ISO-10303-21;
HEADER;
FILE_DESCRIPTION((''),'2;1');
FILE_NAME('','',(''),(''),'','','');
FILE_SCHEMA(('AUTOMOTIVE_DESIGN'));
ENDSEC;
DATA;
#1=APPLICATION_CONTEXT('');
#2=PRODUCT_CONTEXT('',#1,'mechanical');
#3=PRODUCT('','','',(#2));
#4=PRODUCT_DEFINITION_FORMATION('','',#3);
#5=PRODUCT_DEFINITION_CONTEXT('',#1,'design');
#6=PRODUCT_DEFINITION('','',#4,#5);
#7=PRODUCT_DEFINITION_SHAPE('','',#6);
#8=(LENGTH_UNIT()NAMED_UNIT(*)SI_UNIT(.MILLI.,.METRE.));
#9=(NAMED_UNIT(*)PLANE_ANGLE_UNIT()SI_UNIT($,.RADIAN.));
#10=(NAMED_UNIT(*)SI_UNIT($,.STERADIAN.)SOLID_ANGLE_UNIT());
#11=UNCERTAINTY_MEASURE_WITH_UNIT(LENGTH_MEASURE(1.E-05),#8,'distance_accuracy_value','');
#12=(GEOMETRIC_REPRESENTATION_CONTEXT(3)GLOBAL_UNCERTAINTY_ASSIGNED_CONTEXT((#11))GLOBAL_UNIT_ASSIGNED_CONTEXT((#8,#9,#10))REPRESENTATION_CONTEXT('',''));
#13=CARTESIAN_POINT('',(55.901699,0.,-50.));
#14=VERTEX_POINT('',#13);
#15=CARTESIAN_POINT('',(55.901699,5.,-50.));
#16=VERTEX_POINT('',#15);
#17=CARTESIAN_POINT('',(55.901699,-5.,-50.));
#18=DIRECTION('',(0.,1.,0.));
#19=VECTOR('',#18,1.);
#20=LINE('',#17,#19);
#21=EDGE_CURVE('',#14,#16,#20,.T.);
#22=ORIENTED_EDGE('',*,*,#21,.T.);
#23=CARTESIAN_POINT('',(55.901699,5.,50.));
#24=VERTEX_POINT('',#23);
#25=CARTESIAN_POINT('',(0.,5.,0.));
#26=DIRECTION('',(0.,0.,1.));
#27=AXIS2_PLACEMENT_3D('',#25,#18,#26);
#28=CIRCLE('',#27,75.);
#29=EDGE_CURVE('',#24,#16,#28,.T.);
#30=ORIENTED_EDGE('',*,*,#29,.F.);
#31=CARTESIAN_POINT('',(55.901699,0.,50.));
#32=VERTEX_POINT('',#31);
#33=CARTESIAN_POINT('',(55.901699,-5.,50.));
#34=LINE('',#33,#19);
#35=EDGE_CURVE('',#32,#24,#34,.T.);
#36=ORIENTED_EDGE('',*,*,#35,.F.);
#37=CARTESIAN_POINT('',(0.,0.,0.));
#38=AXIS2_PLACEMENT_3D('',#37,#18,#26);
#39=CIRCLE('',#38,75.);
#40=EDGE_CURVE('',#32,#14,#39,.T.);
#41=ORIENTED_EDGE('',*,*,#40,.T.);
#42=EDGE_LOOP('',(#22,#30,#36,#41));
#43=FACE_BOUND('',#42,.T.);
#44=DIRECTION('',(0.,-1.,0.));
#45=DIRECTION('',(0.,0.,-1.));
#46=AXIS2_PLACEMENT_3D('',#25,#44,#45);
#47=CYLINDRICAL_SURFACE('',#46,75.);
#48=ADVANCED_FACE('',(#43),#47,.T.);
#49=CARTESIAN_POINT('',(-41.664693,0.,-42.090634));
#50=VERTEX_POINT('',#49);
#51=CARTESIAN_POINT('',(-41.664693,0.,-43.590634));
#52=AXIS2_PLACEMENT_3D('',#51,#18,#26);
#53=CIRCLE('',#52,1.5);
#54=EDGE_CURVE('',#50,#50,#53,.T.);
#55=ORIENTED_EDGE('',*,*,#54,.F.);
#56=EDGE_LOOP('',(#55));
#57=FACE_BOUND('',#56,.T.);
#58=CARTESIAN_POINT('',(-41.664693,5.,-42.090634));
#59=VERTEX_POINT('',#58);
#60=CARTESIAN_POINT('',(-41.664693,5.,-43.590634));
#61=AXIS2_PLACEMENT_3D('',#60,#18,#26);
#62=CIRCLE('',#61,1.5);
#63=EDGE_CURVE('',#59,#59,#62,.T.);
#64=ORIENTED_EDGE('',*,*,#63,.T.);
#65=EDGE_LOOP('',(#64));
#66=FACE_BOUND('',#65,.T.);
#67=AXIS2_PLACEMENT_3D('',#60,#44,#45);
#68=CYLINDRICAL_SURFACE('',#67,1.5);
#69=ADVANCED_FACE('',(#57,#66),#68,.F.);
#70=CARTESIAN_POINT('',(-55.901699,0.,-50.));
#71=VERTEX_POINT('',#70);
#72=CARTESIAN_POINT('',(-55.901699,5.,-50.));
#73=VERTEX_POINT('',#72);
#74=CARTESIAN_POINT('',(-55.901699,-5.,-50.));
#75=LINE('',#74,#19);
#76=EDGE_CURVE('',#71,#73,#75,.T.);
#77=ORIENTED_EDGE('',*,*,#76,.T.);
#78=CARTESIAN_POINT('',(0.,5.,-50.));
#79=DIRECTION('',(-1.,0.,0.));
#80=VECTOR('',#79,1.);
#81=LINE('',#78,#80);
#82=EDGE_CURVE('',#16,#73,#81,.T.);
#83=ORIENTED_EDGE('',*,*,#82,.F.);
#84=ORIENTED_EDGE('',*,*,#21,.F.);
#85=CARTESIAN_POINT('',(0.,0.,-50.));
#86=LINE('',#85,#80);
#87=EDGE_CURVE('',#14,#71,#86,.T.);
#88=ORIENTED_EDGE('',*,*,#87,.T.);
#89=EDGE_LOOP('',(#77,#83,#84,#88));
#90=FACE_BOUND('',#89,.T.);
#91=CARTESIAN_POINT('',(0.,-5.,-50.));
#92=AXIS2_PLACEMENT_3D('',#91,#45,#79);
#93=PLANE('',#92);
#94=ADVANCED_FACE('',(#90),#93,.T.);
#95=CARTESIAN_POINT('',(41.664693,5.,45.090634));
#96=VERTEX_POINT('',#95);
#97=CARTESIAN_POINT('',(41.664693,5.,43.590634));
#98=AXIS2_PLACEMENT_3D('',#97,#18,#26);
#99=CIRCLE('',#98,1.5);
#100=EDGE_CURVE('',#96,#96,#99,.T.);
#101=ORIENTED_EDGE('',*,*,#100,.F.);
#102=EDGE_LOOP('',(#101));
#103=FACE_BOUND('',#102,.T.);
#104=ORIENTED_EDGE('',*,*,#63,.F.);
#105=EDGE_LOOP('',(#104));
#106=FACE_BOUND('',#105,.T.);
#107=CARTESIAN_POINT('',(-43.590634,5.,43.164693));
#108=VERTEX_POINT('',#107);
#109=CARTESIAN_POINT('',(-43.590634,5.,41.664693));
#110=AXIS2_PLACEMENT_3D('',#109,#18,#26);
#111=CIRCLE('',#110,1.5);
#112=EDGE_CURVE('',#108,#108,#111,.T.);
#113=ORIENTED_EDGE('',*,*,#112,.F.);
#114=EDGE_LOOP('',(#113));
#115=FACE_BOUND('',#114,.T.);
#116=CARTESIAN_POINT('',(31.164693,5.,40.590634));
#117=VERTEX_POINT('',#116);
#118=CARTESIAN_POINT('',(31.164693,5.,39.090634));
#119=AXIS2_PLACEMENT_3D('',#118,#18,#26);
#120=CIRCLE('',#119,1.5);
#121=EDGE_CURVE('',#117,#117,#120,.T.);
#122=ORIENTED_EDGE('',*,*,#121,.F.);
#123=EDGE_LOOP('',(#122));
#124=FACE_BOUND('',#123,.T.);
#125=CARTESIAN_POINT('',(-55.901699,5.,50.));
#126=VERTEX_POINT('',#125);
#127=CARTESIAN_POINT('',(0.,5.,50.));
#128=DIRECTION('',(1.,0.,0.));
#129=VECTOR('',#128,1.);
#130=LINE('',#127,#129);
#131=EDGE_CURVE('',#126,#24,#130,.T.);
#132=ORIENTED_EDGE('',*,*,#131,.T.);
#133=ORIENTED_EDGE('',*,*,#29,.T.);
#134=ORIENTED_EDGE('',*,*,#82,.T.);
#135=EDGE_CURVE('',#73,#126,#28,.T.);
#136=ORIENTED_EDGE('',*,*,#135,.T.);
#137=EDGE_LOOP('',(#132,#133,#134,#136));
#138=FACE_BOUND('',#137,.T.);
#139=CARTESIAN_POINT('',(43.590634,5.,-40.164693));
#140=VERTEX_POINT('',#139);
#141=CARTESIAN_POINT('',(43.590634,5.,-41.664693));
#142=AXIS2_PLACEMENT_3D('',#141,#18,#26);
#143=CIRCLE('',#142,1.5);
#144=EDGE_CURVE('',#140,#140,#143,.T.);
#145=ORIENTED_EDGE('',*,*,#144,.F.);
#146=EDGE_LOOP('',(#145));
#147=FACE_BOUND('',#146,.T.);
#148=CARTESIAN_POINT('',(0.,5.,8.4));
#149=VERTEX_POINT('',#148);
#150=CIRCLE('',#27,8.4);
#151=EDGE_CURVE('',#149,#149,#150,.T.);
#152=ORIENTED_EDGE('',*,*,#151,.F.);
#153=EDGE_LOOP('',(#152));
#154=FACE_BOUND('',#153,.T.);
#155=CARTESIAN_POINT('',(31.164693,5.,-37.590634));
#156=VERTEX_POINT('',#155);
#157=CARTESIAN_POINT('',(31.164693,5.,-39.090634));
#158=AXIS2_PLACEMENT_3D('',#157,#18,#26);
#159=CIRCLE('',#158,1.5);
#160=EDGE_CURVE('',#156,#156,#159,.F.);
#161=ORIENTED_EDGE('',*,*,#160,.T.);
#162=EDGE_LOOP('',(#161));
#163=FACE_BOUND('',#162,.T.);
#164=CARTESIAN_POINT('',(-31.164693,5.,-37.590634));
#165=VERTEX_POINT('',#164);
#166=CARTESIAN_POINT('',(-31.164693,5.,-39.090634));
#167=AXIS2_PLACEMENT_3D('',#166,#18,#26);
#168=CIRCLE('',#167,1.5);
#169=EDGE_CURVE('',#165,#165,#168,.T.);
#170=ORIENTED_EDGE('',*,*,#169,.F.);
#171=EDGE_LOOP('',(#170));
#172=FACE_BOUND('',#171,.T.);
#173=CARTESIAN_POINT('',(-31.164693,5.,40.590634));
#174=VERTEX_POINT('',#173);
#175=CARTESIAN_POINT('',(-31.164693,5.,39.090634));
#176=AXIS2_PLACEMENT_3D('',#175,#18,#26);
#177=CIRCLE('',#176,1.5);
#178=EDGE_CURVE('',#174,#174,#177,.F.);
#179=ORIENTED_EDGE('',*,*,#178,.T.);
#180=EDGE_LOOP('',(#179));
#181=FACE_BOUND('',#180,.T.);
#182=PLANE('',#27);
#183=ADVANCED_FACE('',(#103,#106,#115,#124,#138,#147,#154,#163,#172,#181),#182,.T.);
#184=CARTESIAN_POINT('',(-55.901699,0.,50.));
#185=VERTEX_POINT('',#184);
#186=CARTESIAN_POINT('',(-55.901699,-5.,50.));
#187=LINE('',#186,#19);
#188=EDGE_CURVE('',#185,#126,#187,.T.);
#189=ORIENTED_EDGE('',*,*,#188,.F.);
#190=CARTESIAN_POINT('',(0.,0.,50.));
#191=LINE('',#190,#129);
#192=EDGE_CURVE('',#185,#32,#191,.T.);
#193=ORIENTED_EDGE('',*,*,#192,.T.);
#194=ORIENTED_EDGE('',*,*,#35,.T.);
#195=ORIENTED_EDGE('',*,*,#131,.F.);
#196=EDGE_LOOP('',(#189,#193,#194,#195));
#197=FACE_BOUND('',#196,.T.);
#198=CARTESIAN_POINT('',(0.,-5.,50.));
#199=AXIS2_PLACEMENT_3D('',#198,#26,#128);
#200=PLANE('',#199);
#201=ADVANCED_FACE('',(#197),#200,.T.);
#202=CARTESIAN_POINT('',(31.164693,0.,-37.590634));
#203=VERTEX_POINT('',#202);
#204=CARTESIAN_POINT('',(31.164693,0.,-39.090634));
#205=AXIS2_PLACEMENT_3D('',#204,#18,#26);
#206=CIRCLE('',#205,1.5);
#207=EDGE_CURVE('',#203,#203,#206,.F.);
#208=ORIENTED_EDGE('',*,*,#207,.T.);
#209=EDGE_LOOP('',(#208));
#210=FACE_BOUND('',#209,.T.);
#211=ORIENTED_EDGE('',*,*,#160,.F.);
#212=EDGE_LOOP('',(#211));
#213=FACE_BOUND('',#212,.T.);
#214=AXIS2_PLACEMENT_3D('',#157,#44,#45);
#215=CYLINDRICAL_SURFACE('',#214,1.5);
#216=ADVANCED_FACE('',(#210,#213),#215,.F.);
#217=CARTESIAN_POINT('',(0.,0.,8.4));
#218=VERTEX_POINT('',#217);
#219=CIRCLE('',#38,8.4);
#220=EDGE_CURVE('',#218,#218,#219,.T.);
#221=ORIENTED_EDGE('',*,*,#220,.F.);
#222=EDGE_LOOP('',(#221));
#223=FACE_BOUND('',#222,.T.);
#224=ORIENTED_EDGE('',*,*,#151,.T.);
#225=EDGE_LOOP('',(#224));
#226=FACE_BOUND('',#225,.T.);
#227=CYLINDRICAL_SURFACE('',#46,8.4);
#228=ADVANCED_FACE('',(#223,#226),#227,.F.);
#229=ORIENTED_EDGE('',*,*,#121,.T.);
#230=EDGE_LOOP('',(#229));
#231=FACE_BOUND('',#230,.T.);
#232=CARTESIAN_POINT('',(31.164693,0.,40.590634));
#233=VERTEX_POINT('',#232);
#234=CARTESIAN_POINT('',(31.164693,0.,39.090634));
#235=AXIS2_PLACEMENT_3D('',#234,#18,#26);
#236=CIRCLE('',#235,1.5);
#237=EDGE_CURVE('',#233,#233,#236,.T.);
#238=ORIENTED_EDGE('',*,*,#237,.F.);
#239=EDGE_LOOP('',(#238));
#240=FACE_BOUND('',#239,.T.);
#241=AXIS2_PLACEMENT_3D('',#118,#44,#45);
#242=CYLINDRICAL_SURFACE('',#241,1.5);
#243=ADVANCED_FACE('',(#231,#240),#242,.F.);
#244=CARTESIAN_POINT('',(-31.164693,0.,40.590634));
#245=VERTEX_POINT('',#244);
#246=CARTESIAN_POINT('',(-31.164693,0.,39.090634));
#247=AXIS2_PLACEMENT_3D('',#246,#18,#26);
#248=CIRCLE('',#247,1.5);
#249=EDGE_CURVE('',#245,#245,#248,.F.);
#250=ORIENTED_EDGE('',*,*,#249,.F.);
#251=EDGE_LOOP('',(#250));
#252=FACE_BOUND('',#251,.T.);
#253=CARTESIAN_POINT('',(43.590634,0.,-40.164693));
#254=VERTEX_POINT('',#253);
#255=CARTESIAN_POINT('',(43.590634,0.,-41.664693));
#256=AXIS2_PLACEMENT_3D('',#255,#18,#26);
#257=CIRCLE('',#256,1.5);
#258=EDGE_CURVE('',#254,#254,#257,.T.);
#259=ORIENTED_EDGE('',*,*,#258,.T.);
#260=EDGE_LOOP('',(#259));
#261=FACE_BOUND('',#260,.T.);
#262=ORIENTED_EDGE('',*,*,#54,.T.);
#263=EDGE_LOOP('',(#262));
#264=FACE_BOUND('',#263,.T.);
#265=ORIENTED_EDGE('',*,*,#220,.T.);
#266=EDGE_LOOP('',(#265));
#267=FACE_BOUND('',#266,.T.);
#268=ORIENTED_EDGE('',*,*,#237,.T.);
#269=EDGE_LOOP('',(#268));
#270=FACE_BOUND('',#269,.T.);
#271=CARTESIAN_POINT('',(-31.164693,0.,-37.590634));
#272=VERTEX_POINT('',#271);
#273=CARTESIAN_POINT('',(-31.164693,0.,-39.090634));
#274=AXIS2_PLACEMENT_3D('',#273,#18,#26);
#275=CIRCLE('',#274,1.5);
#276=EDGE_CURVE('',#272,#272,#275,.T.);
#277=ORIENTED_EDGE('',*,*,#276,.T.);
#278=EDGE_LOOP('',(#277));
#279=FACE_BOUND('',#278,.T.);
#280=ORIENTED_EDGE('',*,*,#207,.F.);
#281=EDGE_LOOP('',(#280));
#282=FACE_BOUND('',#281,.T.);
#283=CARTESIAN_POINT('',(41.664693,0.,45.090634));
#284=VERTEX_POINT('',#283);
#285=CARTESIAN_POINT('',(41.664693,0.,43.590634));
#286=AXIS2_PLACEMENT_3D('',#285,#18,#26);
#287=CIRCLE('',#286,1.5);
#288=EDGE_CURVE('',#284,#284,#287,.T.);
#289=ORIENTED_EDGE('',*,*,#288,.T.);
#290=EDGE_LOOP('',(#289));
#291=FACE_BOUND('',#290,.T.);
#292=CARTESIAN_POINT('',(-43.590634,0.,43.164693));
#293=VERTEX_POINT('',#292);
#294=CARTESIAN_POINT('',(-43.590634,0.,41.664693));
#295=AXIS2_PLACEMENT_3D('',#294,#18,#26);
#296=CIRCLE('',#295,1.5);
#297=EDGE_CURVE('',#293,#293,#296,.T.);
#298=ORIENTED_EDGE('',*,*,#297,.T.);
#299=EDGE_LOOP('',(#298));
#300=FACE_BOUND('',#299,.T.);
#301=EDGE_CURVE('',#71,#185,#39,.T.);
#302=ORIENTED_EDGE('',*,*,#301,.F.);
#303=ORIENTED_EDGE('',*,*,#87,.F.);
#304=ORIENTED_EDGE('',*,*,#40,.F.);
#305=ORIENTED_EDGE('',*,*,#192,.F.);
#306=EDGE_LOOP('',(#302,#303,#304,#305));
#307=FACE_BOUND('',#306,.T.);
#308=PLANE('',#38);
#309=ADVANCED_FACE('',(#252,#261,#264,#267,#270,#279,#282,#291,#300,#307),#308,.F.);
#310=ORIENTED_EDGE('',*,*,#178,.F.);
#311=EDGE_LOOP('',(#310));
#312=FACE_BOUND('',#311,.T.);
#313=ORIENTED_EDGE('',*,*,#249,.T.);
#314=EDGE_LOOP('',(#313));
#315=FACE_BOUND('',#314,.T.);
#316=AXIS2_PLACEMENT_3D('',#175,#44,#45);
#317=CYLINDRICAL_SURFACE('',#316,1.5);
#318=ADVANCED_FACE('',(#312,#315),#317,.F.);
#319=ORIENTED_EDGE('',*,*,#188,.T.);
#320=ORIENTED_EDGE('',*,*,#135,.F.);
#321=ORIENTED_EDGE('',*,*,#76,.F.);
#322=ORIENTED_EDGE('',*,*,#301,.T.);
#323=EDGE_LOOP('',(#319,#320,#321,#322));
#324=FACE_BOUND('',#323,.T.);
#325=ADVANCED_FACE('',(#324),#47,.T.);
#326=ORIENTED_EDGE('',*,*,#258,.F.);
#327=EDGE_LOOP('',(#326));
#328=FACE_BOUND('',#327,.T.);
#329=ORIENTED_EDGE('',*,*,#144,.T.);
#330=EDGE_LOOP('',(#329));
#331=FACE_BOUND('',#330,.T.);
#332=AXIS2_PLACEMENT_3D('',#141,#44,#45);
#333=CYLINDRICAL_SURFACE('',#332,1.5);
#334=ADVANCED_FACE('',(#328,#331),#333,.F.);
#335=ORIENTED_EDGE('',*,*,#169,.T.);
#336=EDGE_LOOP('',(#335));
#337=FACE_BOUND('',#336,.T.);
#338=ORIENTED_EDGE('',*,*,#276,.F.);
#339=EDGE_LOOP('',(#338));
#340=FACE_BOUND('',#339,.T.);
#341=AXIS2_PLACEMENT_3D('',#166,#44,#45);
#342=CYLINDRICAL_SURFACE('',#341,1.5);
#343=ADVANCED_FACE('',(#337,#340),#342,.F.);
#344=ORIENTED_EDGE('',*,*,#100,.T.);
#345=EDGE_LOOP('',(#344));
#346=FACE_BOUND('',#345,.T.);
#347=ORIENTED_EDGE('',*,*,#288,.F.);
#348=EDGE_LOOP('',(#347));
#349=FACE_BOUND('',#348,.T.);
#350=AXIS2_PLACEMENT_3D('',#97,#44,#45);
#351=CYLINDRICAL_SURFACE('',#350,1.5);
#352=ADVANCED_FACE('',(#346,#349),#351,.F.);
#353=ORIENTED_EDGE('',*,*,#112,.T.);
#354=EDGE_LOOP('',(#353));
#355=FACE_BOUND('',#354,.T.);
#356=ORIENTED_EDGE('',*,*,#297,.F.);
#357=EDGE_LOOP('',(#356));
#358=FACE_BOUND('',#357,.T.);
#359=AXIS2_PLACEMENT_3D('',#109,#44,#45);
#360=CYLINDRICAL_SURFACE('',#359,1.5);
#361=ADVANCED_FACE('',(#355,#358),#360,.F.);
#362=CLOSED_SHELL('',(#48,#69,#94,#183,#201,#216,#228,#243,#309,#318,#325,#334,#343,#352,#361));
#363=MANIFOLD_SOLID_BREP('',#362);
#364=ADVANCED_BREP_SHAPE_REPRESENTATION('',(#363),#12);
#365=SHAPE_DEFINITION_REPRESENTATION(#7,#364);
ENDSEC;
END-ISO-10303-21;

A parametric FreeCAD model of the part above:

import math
import FreeCAD as App
import Part
import Sketcher
from FreeCAD import Vector

doc = App.newDocument("Part")
body = doc.addObject("PartDesign::Body", "Body")

# Sketch on XZ plane
sketch1 = body.newObject("Sketcher::SketchObject", "Sketch")
sketch1.AttachmentSupport = (doc.getObject("XZ_Plane"), [""])
sketch1.MapMode = "FlatFace"
sketch1.addGeometry([
    Part.Circle(Vector(0, 0, 0), Vector(0, 0, 1), 75),  # 0
    Part.Circle(Vector(-41.664693, -43.590634, 0), Vector(0, 0, 1), 1.5),  # 1
    Part.Circle(Vector(-31.164693, -39.090634, 0), Vector(0, 0, 1), 1.5),  # 2
    Part.Circle(Vector(-43.590634, 41.664693, 0), Vector(0, 0, 1), 1.5),  # 3
    Part.Circle(Vector(-31.164693, 39.090634, 0), Vector(0, 0, 1), 1.5),  # 4
    Part.Circle(Vector(31.164693, -39.090634, 0), Vector(0, 0, 1), 1.5),  # 5
    Part.Circle(Vector(43.590634, -41.664693, 0), Vector(0, 0, 1), 1.5),  # 6
    Part.Circle(Vector(0, 0, 0), Vector(0, 0, 1), 8.4),  # 7
    Part.Circle(Vector(31.164693, 39.090634, 0), Vector(0, 0, 1), 1.5),  # 8
    Part.Circle(Vector(41.664693, 43.590634, 0), Vector(0, 0, 1), 1.5),  # 9
], False)
sketch1.addConstraint([
    Sketcher.Constraint("Coincident", 0, 3, -1, 1),
    Sketcher.Constraint("Coincident", 7, 3, -1, 1),
    Sketcher.Constraint("Equal", 1, 2),
    Sketcher.Constraint("Equal", 2, 3),
    Sketcher.Constraint("Equal", 3, 4),
    Sketcher.Constraint("Equal", 4, 5),
    Sketcher.Constraint("Equal", 5, 6),
    Sketcher.Constraint("Equal", 6, 8),
    Sketcher.Constraint("Equal", 8, 9),
    Sketcher.Constraint("Symmetric", 4, 3, 5, 3, -1, 1),
    Sketcher.Constraint("Symmetric", 3, 3, 6, 3, -1, 1),
    Sketcher.Constraint("Symmetric", 2, 3, 8, 3, -1, 1),
    Sketcher.Constraint("Symmetric", 1, 3, 9, 3, -1, 1),
    Sketcher.Constraint("Symmetric", 2, 3, 5, 3, -2),
    Sketcher.Constraint("Diameter", 0, 150.0),
    Sketcher.Constraint("Diameter", 1, 3.0),
    Sketcher.Constraint("Diameter", 7, 16.8),
    Sketcher.Constraint("DistanceX", 1, 3, 2, 3, 10.5),
    Sketcher.Constraint("DistanceY", 1, 3, 2, 3, 4.5),
    Sketcher.Constraint("DistanceX", 3, 3, 2, 3, 12.425942),
    Sketcher.Constraint("DistanceY", 4, 3, 3, 3, 2.574058),
    Sketcher.Constraint("DistanceY", 2, 3, 4, 3, 78.181268),
    Sketcher.Constraint("DistanceX", 1, 3, -1, 1, 41.664693),
])
pad1 = body.newObject("PartDesign::Pad", "Pad")
pad1.Profile = sketch1
pad1.Length = 5
pad1.Reversed = True

# Sketch on XZ plane
sketch2 = body.newObject("Sketcher::SketchObject", "Sketch001")
sketch2.AttachmentSupport = (doc.getObject("XZ_Plane"), [""])
sketch2.MapMode = "FlatFace"
sketch2.AttachmentOffset = App.Placement(Vector(0, 0, 5), App.Rotation())
sketch2.addGeometry([
    Part.LineSegment(Vector(-55.901699, -50, 0), Vector(55.901699, -50, 0)),
    Part.ArcOfCircle(Part.Circle(Vector(0, 0, 0), Vector(0, 0, 1), 75), math.radians(-138.189685), math.radians(-41.810315)),
    Part.LineSegment(Vector(55.901699, 50, 0), Vector(-55.901699, 50, 0)),
    Part.ArcOfCircle(Part.Circle(Vector(0, 0, 0), Vector(0, 0, 1), 75), math.radians(41.810315), math.radians(138.189685)),
], False)
sketch2.addConstraint([
    Sketcher.Constraint("Coincident", 0, 1, 1, 1),
    Sketcher.Constraint("Coincident", 1, 2, 0, 2),
    Sketcher.Constraint("Coincident", 2, 1, 3, 1),
    Sketcher.Constraint("Coincident", 3, 2, 2, 2),
    Sketcher.Constraint("Horizontal", 0),
    Sketcher.Constraint("Horizontal", 2),
    Sketcher.Constraint("Coincident", 1, 3, -1, 1),
    Sketcher.Constraint("Coincident", 3, 3, -1, 1),
    Sketcher.Constraint("Equal", 1, 3),
    Sketcher.Constraint("Vertical", 1, 2, 2, 1),
    Sketcher.Constraint("Radius", 1, 75.0),
    Sketcher.Constraint("DistanceY", 0, 1, -1, 1, 50.0),
])
pocket1 = body.newObject("PartDesign::Pocket", "Pocket")
pocket1.Profile = sketch2
pocket1.Length = 10

doc.recompute()
